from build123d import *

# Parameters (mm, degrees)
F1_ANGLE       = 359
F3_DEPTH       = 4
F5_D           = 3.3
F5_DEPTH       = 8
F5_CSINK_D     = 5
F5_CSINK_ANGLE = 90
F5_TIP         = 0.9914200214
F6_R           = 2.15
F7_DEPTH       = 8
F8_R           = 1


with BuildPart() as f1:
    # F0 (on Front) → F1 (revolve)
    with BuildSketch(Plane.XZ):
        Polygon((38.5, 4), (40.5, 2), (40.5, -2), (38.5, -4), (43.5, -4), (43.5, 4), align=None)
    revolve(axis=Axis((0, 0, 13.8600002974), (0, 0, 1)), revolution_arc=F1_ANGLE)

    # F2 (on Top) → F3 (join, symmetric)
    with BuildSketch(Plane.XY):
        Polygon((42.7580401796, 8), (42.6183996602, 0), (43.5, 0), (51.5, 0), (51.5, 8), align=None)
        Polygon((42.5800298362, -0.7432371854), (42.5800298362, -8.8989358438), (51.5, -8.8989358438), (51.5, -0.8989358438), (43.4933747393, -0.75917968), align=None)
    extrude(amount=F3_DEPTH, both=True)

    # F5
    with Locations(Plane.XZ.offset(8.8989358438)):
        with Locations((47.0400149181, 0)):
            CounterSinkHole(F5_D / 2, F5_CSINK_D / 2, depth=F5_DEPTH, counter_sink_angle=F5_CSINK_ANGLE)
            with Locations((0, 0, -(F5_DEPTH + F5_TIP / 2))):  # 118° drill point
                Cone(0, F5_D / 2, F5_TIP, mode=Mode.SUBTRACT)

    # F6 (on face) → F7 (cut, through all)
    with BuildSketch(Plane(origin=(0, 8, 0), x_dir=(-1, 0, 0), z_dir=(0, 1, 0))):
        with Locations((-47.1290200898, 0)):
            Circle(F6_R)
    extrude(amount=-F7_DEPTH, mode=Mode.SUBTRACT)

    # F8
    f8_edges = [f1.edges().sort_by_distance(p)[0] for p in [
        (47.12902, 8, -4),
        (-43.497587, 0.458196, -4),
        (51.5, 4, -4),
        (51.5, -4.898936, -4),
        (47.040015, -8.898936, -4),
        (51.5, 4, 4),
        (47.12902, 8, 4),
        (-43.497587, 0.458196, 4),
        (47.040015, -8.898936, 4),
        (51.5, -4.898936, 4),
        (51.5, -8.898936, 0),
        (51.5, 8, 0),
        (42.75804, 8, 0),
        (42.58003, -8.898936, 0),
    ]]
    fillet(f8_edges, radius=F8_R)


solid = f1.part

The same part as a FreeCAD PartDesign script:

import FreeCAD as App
import Part
import Sketcher
Q = App.Units.Quantity


def edges_at(feature, points):
    """Names of the edges that pass closest to the given points."""
    edges = feature.Shape.Edges
    near = lambda p: min(range(len(edges)), key=lambda i: edges[i].distToShape(Part.Vertex(*p))[0])
    return sorted({f"Edge{near(p) + 1}" for p in points})

doc = App.newDocument("Part")
body = doc.addObject("PartDesign::Body", "Body")

sketch1 = body.newObject("Sketcher::SketchObject", "Sketch")
sketch1.AttachmentSupport = (doc.getObject("XZ_Plane"), [""])
sketch1.MapMode = "FlatFace"
sketch1.addGeometry([
    Part.LineSegment(App.Vector(38.5, 4, 0), App.Vector(40.5, 2, 0)),
    Part.LineSegment(App.Vector(40.5, 2, 0), App.Vector(40.5, -2, 0)),
    Part.LineSegment(App.Vector(40.5, -2, 0), App.Vector(38.5, -4, 0)),
    Part.LineSegment(App.Vector(38.5, -4, 0), App.Vector(43.5, -4, 0)),
    Part.LineSegment(App.Vector(43.5, -4, 0), App.Vector(43.5, 4, 0)),
    Part.LineSegment(App.Vector(43.5, 4, 0), App.Vector(38.5, 4, 0)),
], False)
sketch1.addConstraint([
    Sketcher.Constraint("Coincident", 0, 2, 1, 1),
    Sketcher.Constraint("Coincident", 1, 2, 2, 1),
    Sketcher.Constraint("Coincident", 2, 2, 3, 1),
    Sketcher.Constraint("Coincident", 3, 2, 4, 1),
    Sketcher.Constraint("Coincident", 4, 2, 5, 1),
    Sketcher.Constraint("Coincident", 5, 2, 0, 1),
    Sketcher.Constraint("Vertical", 1),
    Sketcher.Constraint("Horizontal", 3),
    Sketcher.Constraint("Vertical", 4),
    Sketcher.Constraint("Horizontal", 5),
    Sketcher.Constraint("Symmetric", 2, 2, 5, 2, -1),
    Sketcher.Constraint("Perpendicular", 0, 2),
    Sketcher.Constraint("Equal", 0, 2),
    Sketcher.Constraint("DistanceX", 3, 1, 3, 2, 5.0),
    Sketcher.Constraint("DistanceY", 1, 2, 1, 1, 4.0),
    Sketcher.Constraint("DistanceY", 4, 1, 4, 2, 8.0),
    Sketcher.Constraint("DistanceX", -1, 1, 0, 2, 40.5),
])
revolution = body.newObject("PartDesign::Revolution", "Revolution")
revolution.Profile = sketch1
revolution.ReferenceAxis = (sketch1, ["V_Axis"])
revolution.Angle = 359

sketch2 = body.newObject("Sketcher::SketchObject", "Sketch001")
sketch2.AttachmentSupport = (doc.getObject("XY_Plane"), [""])
sketch2.MapMode = "FlatFace"
sketch2.addGeometry([
    Part.LineSegment(App.Vector(42.75804, 8, 0), App.Vector(42.6184, 0, 0)),
    Part.LineSegment(App.Vector(42.6184, 0, 0), App.Vector(51.5, 0, 0)),
    Part.LineSegment(App.Vector(51.5, 0, 0), App.Vector(51.5, 8, 0)),
    Part.LineSegment(App.Vector(51.5, 8, 0), App.Vector(42.75804, 8, 0)),
    Part.LineSegment(App.Vector(42.58003, -0.743237, 0), App.Vector(42.58003, -8.898936, 0)),
    Part.LineSegment(App.Vector(42.58003, -8.898936, 0), App.Vector(51.5, -8.898936, 0)),
    Part.LineSegment(App.Vector(51.5, -8.898936, 0), App.Vector(51.5, -0.898936, 0)),
    Part.LineSegment(App.Vector(51.5, -0.898936, 0), App.Vector(43.493375, -0.75918, 0)),
    Part.LineSegment(App.Vector(43.493375, -0.75918, 0), App.Vector(42.58003, -0.743237, 0)),
], False)
sketch2.addConstraint([
    Sketcher.Constraint("Coincident", 0, 2, 1, 1),
    Sketcher.Constraint("Coincident", 1, 2, 2, 1),
    Sketcher.Constraint("Coincident", 2, 2, 3, 1),
    Sketcher.Constraint("Coincident", 3, 2, 0, 1),
    Sketcher.Constraint("Coincident", 4, 2, 5, 1),
    Sketcher.Constraint("Coincident", 5, 2, 6, 1),
    Sketcher.Constraint("Coincident", 6, 2, 7, 1),
    Sketcher.Constraint("Coincident", 7, 2, 8, 1),
    Sketcher.Constraint("Coincident", 8, 2, 4, 1),
    Sketcher.Constraint("Horizontal", 1),
    Sketcher.Constraint("Vertical", 2),
    Sketcher.Constraint("Horizontal", 3),
    Sketcher.Constraint("Vertical", 4),
    Sketcher.Constraint("Horizontal", 5),
    Sketcher.Constraint("Vertical", 6),
    Sketcher.Constraint("PointOnObject", 0, 2, -1),
    Sketcher.Constraint("Perpendicular", 0, 7),
    Sketcher.Constraint("Parallel", 7, 8),
    Sketcher.Constraint("Vertical", 2, 2, 5, 2),
    Sketcher.Constraint("Equal", 2, 6),
    Sketcher.Constraint("DistanceY", 2, 1, 2, 2, 8.0),
    Sketcher.Constraint("Angle", 0, Q("-91 deg")),
    Sketcher.Constraint("DistanceX", -1, 1, 1, 2, 51.5),
    Sketcher.Constraint("DistanceX", 1, 1, 1, 2, 8.8816),
    Sketcher.Constraint("DistanceY", 4, 2, 4, 1, 8.155699),
    Sketcher.Constraint("DistanceY", 7, 2, -1, 1, 0.75918),
    Sketcher.Constraint("Distance", 7, 8.007845),
])
pad1 = body.newObject("PartDesign::Pad", "Pad")
pad1.Profile = sketch2
pad1.Length = 8
pad1.Midplane = True

sketch3 = body.newObject("Sketcher::SketchObject", "Sketch002")
sketch3.AttachmentSupport = (doc.getObject("XZ_Plane"), [""])
sketch3.MapMode = "FlatFace"
sketch3.AttachmentOffset = App.Placement(App.Vector(0, 0, 8.898936), App.Rotation())
sketch3.addGeometry(Part.Circle(App.Vector(47.040015, 0, 0), App.Vector(0, 0, 1), 1.65), False)
sketch3.addConstraint([
    Sketcher.Constraint("PointOnObject", 0, 3, -1),
    Sketcher.Constraint("Diameter", 0, 3.3),
    Sketcher.Constraint("DistanceX", -1, 1, 0, 3, 47.040015),
])
doc.recompute()
hole = body.newObject("PartDesign::Hole", "Hole")
hole.Profile = sketch3
hole.ThreadType = "None"
hole.Diameter = 3.3
hole.DepthType = "Dimension"
hole.Depth = 8
hole.DrillPoint = "Angled"
hole.DrillPointAngle = 118
hole.HoleCutType = "Countersink"
hole.HoleCutDiameter = 5
hole.HoleCutCountersinkAngle = 90

sketch4 = body.newObject("Sketcher::SketchObject", "Sketch003")
sketch4.AttachmentSupport = (doc.getObject("XZ_Plane"), [""])
sketch4.MapMode = "FlatFace"
sketch4.AttachmentOffset = App.Placement(App.Vector(0, 0, -8), App.Rotation())
sketch4.addGeometry(Part.Circle(App.Vector(47.12902, 0, 0), App.Vector(0, 0, 1), 2.15), False)
sketch4.addConstraint([
    Sketcher.Constraint("PointOnObject", 0, 3, -1),
    Sketcher.Constraint("Diameter", 0, 4.3),
    Sketcher.Constraint("DistanceX", -1, 1, 0, 3, 47.12902),
])
pocket1 = body.newObject("PartDesign::Pocket", "Pocket")
pocket1.Profile = sketch4
pocket1.Length = 8
pocket1.Reversed = True
doc.recompute()

fillet = body.newObject("PartDesign::Fillet", "Fillet")
fillet.Base = (pocket1, edges_at(pocket1, [
    (47.129, 8, -4),
    (-43.498, 0.458, -4),
    (51.5, 4, -4),
    (51.5, -4.899, -4),
    (47.04, -8.899, -4),
    (51.5, 4, 4),
    (47.129, 8, 4),
    (-43.498, 0.458, 4),
    (47.04, -8.899, 4),
    (51.5, -4.899, 4),
    (51.5, -8.899, 0),
    (51.5, 8, 0),
    (42.758, 8, 0),
    (42.58, -8.899, 0),
]))
fillet.Radius = 1

doc.recompute()
